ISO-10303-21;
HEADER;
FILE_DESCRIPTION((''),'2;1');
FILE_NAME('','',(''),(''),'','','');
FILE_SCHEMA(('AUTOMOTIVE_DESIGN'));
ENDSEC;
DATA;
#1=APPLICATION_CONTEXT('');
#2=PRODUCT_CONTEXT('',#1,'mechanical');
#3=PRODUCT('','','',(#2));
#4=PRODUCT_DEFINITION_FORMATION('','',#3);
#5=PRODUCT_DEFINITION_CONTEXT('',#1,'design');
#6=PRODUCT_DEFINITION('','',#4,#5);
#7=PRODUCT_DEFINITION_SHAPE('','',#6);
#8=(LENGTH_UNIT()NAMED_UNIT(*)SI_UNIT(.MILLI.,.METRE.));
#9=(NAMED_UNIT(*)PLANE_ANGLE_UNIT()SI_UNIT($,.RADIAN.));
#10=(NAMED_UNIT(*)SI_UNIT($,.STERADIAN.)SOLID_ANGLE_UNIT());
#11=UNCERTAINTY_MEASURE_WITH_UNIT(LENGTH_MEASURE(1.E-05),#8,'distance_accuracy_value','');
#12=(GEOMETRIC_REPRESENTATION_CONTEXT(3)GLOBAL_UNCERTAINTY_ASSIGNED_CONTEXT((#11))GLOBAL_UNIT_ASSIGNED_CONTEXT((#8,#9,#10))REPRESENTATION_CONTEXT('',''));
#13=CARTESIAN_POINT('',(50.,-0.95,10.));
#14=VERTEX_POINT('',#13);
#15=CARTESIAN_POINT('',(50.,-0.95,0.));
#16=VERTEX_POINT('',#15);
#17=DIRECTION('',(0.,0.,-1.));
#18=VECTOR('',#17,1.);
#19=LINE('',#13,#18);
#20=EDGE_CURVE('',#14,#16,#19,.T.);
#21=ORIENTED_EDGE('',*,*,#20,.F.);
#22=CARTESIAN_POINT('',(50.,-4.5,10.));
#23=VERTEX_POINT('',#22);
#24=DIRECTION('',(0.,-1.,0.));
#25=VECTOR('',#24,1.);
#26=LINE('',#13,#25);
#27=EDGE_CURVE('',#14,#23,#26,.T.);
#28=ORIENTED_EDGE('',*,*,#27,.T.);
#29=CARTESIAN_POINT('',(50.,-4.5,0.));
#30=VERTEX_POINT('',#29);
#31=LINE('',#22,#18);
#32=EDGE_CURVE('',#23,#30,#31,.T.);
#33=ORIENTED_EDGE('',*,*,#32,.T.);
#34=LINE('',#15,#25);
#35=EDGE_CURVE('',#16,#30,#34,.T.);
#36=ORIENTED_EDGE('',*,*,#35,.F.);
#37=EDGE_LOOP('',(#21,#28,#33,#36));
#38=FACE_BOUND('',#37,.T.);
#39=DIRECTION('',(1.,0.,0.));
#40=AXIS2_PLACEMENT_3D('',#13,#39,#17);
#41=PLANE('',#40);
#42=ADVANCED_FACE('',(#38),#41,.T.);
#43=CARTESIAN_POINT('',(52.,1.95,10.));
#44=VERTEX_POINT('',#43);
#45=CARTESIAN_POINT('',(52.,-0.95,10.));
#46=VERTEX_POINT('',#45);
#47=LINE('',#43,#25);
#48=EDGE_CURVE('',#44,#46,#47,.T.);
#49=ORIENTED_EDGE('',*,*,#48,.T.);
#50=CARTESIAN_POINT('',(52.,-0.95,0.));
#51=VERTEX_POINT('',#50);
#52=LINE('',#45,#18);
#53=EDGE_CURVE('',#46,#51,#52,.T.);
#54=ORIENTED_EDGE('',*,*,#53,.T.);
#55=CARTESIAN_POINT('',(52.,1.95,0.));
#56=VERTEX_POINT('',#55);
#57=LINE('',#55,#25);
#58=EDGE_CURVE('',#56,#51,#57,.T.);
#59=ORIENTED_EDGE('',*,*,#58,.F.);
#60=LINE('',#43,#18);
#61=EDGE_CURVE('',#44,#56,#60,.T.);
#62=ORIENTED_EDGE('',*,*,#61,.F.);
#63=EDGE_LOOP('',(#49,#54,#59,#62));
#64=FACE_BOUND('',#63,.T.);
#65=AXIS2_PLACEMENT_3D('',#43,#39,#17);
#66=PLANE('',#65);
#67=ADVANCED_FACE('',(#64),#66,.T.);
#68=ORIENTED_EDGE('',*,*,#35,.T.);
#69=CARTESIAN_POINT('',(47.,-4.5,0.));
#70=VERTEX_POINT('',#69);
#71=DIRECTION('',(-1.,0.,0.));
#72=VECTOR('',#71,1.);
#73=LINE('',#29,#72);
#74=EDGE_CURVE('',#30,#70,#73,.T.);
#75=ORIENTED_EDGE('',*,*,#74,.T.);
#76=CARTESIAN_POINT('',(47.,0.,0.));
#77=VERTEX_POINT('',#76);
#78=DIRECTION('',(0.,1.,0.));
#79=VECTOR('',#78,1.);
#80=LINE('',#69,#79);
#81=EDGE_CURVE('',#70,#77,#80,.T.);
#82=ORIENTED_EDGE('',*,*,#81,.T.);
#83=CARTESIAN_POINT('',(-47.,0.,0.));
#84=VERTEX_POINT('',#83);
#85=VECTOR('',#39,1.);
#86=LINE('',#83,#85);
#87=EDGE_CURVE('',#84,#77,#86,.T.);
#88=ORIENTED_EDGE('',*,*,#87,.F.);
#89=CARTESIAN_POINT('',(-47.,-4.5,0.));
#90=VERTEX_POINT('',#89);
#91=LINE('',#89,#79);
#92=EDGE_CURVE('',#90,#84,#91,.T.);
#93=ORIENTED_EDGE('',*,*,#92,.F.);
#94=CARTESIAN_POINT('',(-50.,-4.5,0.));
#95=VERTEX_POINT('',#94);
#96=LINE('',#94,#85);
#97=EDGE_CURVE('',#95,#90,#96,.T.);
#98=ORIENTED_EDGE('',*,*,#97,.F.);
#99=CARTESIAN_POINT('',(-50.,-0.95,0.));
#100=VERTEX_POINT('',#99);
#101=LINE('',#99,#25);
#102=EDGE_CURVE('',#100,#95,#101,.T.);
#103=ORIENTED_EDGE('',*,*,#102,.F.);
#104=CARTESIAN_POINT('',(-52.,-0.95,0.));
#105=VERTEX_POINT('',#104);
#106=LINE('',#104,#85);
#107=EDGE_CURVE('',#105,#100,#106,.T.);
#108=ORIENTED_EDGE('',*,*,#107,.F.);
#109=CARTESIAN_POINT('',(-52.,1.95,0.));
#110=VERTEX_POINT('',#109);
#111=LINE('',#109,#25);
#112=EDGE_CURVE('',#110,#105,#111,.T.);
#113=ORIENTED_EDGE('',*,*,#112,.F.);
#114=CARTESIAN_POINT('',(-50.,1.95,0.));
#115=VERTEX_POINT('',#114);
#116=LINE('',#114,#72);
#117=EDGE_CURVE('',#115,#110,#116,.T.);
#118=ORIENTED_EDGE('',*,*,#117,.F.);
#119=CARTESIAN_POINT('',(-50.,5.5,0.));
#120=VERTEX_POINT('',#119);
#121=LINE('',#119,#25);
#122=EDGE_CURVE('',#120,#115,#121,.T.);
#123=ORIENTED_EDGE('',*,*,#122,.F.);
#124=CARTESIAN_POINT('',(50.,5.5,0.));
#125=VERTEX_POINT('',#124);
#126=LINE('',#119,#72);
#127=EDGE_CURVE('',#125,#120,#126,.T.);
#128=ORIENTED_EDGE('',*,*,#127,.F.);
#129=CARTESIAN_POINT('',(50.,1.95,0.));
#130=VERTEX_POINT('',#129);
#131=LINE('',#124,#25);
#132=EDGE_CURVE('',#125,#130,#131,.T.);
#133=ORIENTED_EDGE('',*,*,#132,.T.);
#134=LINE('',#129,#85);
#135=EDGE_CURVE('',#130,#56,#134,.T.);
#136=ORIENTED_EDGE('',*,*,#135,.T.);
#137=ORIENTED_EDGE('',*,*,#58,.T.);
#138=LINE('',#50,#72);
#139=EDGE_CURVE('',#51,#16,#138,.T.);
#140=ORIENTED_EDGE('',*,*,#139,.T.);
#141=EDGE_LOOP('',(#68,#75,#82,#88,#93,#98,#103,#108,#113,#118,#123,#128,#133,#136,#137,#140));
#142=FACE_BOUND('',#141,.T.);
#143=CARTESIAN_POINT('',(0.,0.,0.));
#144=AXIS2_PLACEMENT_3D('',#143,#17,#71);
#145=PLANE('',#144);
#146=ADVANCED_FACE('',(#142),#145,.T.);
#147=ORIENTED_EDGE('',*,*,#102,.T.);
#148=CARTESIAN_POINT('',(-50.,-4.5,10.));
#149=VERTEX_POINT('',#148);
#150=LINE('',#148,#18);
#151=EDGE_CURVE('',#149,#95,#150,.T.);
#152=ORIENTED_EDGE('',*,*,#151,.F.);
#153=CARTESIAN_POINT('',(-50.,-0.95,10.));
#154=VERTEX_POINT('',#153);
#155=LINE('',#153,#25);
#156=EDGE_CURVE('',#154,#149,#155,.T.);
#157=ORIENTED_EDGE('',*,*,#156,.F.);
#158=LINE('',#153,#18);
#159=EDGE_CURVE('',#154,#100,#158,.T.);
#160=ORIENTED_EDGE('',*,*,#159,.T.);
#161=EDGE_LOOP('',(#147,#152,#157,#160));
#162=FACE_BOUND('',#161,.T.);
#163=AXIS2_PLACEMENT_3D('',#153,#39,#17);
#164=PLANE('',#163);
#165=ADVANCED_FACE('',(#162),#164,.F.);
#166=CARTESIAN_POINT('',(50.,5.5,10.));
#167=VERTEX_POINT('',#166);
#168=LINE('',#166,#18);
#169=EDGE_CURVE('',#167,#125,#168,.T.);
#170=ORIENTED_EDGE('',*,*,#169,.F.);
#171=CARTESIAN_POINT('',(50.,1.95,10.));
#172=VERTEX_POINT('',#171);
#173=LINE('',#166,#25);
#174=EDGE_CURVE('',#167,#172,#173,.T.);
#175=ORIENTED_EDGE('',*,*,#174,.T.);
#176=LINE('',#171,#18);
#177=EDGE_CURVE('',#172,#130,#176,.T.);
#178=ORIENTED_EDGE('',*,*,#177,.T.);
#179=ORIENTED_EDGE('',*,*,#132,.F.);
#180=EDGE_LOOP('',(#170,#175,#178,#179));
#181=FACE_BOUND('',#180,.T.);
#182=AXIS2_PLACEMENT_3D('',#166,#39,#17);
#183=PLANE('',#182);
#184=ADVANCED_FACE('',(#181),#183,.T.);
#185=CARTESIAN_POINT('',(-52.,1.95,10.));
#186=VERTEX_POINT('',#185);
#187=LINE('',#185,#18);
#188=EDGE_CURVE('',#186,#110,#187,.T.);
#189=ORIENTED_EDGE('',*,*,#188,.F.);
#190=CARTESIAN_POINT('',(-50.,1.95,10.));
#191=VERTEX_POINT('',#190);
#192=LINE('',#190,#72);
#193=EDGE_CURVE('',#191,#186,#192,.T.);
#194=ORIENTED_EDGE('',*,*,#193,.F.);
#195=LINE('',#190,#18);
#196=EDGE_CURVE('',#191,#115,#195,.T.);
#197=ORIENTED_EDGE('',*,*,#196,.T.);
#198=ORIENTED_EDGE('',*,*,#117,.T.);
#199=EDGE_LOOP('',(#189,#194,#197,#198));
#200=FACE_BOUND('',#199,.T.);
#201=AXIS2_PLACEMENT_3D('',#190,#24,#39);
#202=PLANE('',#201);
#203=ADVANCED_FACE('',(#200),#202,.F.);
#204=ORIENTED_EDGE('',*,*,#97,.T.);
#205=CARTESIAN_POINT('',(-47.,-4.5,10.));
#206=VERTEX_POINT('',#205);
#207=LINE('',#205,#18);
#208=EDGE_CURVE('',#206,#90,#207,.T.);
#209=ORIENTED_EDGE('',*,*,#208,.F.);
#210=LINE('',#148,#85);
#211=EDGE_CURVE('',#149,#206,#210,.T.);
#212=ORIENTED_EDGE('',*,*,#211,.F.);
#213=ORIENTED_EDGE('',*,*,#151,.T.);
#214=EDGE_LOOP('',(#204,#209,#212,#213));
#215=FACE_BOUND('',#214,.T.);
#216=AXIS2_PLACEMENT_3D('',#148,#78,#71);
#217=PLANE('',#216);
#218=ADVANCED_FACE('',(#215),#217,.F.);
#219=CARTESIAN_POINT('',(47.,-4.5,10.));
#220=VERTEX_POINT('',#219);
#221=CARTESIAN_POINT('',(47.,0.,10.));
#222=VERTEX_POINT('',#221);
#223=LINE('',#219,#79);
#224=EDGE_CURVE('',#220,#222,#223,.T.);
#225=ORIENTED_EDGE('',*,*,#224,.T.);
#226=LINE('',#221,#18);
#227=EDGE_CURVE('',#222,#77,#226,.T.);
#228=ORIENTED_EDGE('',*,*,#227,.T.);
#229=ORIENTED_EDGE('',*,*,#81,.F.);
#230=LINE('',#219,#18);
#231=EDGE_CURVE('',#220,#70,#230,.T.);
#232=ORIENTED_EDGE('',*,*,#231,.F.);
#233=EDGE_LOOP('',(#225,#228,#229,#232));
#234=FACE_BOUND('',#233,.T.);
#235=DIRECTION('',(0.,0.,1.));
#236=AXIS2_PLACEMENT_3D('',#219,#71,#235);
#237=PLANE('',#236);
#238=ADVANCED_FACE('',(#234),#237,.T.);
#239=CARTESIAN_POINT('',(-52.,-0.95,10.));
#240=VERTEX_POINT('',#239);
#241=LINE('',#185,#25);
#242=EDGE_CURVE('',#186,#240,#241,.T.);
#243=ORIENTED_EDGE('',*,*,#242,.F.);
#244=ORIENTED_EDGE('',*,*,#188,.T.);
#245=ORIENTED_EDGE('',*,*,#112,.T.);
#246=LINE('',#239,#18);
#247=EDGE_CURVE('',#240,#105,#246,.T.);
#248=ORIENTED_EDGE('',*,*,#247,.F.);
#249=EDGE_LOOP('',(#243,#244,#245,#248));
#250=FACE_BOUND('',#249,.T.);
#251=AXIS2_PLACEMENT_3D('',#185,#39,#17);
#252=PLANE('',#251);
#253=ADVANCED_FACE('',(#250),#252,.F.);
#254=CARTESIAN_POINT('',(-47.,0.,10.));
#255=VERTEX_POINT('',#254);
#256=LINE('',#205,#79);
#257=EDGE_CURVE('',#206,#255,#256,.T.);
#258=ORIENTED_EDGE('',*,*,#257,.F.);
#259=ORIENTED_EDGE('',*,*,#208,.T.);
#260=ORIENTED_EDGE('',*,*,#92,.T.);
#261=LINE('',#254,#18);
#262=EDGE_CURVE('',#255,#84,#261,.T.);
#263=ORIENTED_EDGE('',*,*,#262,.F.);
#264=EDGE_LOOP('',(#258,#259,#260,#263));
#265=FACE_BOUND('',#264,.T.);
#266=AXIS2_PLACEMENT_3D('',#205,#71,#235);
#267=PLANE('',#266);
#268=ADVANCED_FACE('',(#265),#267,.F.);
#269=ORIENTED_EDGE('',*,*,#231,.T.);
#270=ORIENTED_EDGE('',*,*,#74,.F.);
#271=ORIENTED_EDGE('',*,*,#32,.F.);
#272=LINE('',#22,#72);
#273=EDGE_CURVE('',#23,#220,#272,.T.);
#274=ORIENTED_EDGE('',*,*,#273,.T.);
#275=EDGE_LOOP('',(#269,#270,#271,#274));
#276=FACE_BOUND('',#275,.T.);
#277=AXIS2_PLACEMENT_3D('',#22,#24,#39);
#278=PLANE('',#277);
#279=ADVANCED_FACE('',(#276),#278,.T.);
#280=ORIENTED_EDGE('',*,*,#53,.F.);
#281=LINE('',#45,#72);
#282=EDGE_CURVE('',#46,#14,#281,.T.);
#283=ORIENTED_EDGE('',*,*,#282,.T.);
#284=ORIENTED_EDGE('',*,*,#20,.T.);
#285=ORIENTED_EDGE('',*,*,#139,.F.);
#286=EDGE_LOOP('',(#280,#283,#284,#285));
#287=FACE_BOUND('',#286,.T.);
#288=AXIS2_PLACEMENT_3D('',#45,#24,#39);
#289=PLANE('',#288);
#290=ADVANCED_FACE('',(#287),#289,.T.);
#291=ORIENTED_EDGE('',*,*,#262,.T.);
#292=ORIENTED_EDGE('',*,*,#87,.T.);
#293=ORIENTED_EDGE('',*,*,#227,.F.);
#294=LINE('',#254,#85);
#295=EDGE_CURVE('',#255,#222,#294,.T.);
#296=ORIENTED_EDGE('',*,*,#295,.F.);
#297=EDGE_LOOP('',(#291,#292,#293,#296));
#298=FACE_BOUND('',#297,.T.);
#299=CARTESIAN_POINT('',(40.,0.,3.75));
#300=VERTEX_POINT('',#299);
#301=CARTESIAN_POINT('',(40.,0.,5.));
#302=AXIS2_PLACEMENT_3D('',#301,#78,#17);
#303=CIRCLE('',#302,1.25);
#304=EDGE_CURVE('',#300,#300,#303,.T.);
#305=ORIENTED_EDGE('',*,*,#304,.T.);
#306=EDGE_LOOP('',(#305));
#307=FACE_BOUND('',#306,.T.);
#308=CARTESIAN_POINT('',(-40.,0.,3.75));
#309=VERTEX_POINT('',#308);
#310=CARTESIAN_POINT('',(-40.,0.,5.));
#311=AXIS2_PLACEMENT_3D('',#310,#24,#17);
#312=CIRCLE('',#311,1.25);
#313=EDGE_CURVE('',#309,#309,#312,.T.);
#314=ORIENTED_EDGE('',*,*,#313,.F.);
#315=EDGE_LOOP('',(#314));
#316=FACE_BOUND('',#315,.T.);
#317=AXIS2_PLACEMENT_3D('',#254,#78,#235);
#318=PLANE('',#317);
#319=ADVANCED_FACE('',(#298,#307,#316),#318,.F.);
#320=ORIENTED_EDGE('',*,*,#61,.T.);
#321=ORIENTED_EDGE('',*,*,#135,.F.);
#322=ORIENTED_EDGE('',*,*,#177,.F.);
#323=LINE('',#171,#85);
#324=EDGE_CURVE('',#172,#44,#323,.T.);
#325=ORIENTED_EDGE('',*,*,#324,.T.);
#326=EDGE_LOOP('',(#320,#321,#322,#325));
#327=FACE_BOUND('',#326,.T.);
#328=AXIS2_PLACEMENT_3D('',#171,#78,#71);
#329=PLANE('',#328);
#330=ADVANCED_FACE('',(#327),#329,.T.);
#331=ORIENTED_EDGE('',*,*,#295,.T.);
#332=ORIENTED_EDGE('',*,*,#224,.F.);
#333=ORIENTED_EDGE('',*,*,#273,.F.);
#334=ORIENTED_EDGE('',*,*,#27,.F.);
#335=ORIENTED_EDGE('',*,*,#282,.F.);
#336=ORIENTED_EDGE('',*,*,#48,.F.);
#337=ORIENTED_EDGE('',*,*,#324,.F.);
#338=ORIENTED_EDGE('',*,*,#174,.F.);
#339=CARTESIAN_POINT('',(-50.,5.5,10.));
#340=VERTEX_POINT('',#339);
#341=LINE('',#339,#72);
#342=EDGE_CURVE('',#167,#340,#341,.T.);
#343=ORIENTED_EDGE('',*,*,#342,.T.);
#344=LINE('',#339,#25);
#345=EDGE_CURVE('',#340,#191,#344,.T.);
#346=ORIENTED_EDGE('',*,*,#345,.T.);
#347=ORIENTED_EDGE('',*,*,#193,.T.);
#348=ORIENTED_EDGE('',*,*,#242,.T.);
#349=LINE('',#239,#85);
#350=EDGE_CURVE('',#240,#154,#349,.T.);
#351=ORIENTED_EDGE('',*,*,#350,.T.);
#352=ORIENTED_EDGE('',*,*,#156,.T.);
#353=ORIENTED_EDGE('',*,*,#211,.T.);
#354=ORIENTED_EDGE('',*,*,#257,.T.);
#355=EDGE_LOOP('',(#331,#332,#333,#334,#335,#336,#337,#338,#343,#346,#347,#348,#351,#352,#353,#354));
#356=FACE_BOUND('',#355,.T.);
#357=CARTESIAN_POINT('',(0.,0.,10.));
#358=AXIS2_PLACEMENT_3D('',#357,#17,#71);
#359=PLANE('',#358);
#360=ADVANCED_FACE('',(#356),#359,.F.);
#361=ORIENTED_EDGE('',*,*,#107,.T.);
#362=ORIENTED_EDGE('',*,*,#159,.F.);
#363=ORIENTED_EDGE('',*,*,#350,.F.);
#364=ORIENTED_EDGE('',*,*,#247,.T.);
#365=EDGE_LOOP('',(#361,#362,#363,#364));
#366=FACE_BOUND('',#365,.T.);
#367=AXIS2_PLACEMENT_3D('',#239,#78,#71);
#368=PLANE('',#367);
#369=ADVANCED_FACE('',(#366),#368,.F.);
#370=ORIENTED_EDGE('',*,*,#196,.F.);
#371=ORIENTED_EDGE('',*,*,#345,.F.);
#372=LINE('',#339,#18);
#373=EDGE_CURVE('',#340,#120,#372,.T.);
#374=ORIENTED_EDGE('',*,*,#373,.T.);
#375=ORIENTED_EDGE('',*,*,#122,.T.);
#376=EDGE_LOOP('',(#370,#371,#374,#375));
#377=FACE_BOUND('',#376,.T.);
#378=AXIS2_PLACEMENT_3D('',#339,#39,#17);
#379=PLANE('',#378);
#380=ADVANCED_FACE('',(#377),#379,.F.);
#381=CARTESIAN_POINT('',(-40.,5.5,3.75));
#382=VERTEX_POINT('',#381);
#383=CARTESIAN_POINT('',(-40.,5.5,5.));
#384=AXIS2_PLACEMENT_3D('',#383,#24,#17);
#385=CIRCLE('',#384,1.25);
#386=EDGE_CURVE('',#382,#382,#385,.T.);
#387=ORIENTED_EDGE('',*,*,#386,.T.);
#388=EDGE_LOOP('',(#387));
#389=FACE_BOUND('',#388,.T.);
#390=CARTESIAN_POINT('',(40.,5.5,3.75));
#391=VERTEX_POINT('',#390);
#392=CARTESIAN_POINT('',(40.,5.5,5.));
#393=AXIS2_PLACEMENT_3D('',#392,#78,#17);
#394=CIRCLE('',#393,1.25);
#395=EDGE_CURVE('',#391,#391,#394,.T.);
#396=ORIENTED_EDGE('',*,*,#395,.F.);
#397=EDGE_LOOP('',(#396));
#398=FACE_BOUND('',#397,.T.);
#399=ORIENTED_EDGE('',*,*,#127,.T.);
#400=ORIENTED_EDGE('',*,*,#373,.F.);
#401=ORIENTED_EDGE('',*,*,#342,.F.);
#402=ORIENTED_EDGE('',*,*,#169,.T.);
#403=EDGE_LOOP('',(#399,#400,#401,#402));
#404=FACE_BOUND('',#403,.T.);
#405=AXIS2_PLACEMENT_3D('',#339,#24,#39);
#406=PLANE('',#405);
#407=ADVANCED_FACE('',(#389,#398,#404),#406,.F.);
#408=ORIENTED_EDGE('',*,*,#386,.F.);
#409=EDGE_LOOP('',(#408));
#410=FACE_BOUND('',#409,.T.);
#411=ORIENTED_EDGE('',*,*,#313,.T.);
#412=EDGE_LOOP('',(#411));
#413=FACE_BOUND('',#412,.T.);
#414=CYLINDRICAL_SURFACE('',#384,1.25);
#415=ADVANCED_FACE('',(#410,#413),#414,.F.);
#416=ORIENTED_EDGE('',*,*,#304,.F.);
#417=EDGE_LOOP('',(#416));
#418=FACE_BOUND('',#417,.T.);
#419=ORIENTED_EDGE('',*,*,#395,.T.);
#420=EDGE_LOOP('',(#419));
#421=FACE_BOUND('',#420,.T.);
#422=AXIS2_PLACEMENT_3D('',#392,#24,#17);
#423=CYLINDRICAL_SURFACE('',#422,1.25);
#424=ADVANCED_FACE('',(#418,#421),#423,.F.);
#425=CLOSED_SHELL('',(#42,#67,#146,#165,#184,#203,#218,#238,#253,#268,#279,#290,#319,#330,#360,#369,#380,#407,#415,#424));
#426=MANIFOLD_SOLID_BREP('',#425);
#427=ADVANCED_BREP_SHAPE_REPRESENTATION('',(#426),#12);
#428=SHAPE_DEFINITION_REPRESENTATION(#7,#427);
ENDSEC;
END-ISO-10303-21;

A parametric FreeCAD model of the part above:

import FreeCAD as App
import Part
import Sketcher
from FreeCAD import Vector


def add_polygon(sketch, points):
    """Adds a closed chain of lines whose ends are joined by coincident constraints."""
    first, n = sketch.GeometryCount, len(points)
    for a, b in zip(points, points[1:] + points[:1]):
        sketch.addGeometry(Part.LineSegment(App.Vector(*a, 0), App.Vector(*b, 0)), False)
    for i in range(n):
        sketch.addConstraint(Sketcher.Constraint("Coincident", first + i, 2, first + (i + 1) % n, 1))

doc = App.newDocument("Part")
params = doc.addObject("Spreadsheet::Sheet", "Params")
for row, (alias, value) in enumerate([
    ("sketch1_width", "2 mm"),
    ("sketch1_width2", "3 mm"),
    ("sketch1_width3", "47 mm"),
    ("sketch1_height", "2.9 mm"),
    ("sketch1_height2", "4.5 mm"),
    ("pad1_length", "10 mm"),
    ("sketch2_diameter", "2.5 mm"),
], start=1):
    params.set(f"A{row}", alias)
    params.set(f"B{row}", "=" + value)
    params.setAlias(f"B{row}", alias)

body = doc.addObject("PartDesign::Body", "Body")

# Sketch on XY plane
sketch1 = doc.addObject("Sketcher::SketchObject", "Sketch")
body.addObject(sketch1)
sketch1.AttachmentSupport = (doc.XY_Plane, [""])
sketch1.MapMode = "FlatFace"
add_polygon(sketch1, [(-50, 5.5), (-50, 1.95), (-52, 1.95), (-52, -0.95), (-50, -0.95), (-50, -4.5), (-47, -4.5), (-47, 0), (0, 0), (0, 5.5)])  # lines 0-9
sketch1.addConstraint(Sketcher.Constraint("Vertical", 0))
sketch1.addConstraint(Sketcher.Constraint("Horizontal", 1))
sketch1.addConstraint(Sketcher.Constraint("Vertical", 2))
sketch1.addConstraint(Sketcher.Constraint("Horizontal", 3))
sketch1.addConstraint(Sketcher.Constraint("Vertical", 4))
sketch1.addConstraint(Sketcher.Constraint("Horizontal", 5))
sketch1.addConstraint(Sketcher.Constraint("Vertical", 6))
sketch1.addConstraint(Sketcher.Constraint("Horizontal", 7))
sketch1.addConstraint(Sketcher.Constraint("Vertical", 8))
sketch1.addConstraint(Sketcher.Constraint("Horizontal", 9))
sketch1.addConstraint(Sketcher.Constraint("Coincident", 7, 2, -1, 1))
sketch1.addConstraint(Sketcher.Constraint("Vertical", 0, 2, 3, 2))
sketch1.addConstraint(Sketcher.Constraint("Equal", 0, 4))
sketch1.addConstraint(Sketcher.Constraint("DistanceX", 1, 2, 1, 1, 2.0))
sketch1.addConstraint(Sketcher.Constraint("DistanceX", 5, 1, 5, 2, 3.0))
sketch1.addConstraint(Sketcher.Constraint("DistanceX", 7, 1, 7, 2, 47.0))
sketch1.addConstraint(Sketcher.Constraint("DistanceY", 2, 2, 2, 1, 2.9))
sketch1.addConstraint(Sketcher.Constraint("DistanceY", 6, 1, 6, 2, 4.5))
sketch1.addConstraint(Sketcher.Constraint("DistanceY", 8, 1, 8, 2, 5.5))
sketch1.setExpression("Constraints[23]", "Params.sketch1_width")
sketch1.setExpression("Constraints[24]", "Params.sketch1_width2")
sketch1.setExpression("Constraints[25]", "Params.sketch1_width3")
sketch1.setExpression("Constraints[26]", "Params.sketch1_height")
sketch1.setExpression("Constraints[27]", "Params.sketch1_height2")
pad1 = doc.addObject("PartDesign::Pad", "Pad")
body.addObject(pad1)
pad1.Profile = sketch1
pad1.setExpression("Length", "Params.pad1_length")

# Sketch on XZ plane
sketch2 = doc.addObject("Sketcher::SketchObject", "Sketch001")
body.addObject(sketch2)
sketch2.AttachmentSupport = (doc.XZ_Plane, [""])
sketch2.MapMode = "FlatFace"
sketch2.addGeometry(Part.Circle(Vector(-40, 5, 0), Vector(0, 0, 1), 1.25), False)
sketch2.addConstraint(Sketcher.Constraint("Diameter", 0, 2.5))
sketch2.addConstraint(Sketcher.Constraint("DistanceX", 0, 3, -1, 1, 40.0))
sketch2.addConstraint(Sketcher.Constraint("DistanceY", -1, 1, 0, 3, 5.0))
sketch2.setExpression("Constraints[0]", "Params.sketch2_diameter")
pocket1 = doc.addObject("PartDesign::Pocket", "Pocket")
body.addObject(pocket1)
pocket1.Profile = sketch2
pocket1.Type = "ThroughAll"
doc.recompute()

mirrored = doc.addObject("PartDesign::Mirrored", "Mirrored")
body.addObject(mirrored)
mirrored.Originals = [pad1, pocket1]
mirrored.MirrorPlane = (doc.YZ_Plane, [""])
body.Tip = mirrored

doc.recompute()
